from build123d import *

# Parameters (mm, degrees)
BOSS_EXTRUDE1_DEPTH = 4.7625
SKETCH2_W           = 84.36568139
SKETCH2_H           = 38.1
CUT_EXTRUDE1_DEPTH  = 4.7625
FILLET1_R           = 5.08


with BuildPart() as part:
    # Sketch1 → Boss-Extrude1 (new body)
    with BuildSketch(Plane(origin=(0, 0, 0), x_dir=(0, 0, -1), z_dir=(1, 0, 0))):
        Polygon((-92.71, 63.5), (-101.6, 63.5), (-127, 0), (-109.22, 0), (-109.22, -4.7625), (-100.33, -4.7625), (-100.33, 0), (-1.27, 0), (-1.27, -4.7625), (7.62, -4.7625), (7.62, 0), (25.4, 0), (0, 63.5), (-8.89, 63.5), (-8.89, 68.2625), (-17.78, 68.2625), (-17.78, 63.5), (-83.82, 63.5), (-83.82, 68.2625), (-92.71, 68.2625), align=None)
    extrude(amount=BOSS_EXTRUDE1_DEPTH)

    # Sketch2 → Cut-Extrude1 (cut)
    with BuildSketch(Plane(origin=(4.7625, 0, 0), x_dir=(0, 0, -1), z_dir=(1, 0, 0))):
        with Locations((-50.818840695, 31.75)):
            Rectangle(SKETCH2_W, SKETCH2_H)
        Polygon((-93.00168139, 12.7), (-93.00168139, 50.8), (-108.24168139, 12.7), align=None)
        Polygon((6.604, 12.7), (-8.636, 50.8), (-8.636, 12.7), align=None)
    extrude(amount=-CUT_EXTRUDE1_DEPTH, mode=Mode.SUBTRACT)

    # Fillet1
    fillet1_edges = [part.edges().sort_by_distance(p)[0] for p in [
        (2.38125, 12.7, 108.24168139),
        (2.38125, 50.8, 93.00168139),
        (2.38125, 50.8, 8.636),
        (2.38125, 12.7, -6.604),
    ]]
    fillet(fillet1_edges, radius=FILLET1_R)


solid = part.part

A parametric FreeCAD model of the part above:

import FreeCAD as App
import Part
import Sketcher
from FreeCAD import Vector
Q = App.Units.Quantity


def edges_at(feature, points):
    """Names of the edges that pass closest to the given points."""
    edges = feature.Shape.Edges
    near = lambda p: min(range(len(edges)), key=lambda i: edges[i].distToShape(Part.Vertex(*p))[0])
    return sorted({f"Edge{near(p) + 1}" for p in points})


def add_polygon(sketch, points):
    """Adds a closed chain of lines whose ends are joined by coincident constraints."""
    first, n = sketch.GeometryCount, len(points)
    for a, b in zip(points, points[1:] + points[:1]):
        sketch.addGeometry(Part.LineSegment(App.Vector(*a, 0), App.Vector(*b, 0)), False)
    for i in range(n):
        sketch.addConstraint(Sketcher.Constraint("Coincident", first + i, 2, first + (i + 1) % n, 1))

doc = App.newDocument("Part")
body = doc.addObject("PartDesign::Body", "Body")

sketch1 = body.newObject("Sketcher::SketchObject", "Sketch")
sketch1.AttachmentSupport = (doc.getObject("YZ_Plane"), [""])
sketch1.MapMode = "FlatFace"
add_polygon(sketch1, [(63.5, 92.7), (63.5, 101.6), (0, 127), (0, 109.2), (-4.8, 109.2), (-4.8, 100.3), (0, 100.3), (0, 1.3), (-4.8, 1.3), (-4.8, -7.6), (0, -7.6), (0, -25.4), (63.5, 0), (63.5, 8.9), (68.3, 8.9), (68.3, 17.8), (63.5, 17.8), (63.5, 83.8), (68.3, 83.8), (68.3, 92.7)])
sketch1.addConstraint([
    Sketcher.Constraint("Vertical", 0),
    Sketcher.Constraint("Vertical", 2),
    Sketcher.Constraint("Horizontal", 3),
    Sketcher.Constraint("Vertical", 4),
    Sketcher.Constraint("Horizontal", 5),
    Sketcher.Constraint("Vertical", 6),
    Sketcher.Constraint("Horizontal", 7),
    Sketcher.Constraint("Vertical", 8),
    Sketcher.Constraint("Horizontal", 9),
    Sketcher.Constraint("Vertical", 10),
    Sketcher.Constraint("Vertical", 12),
    Sketcher.Constraint("Horizontal", 13),
    Sketcher.Constraint("Vertical", 14),
    Sketcher.Constraint("Horizontal", 15),
    Sketcher.Constraint("Vertical", 16),
    Sketcher.Constraint("Horizontal", 17),
    Sketcher.Constraint("Vertical", 18),
    Sketcher.Constraint("Horizontal", 19),
    Sketcher.Constraint("PointOnObject", 1, 2, -2),
    Sketcher.Constraint("PointOnObject", 5, 2, -2),
    Sketcher.Constraint("PointOnObject", 9, 2, -2),
    Sketcher.Constraint("PointOnObject", 11, 2, -1),
    Sketcher.Constraint("Vertical", 4, 2, 7, 2),
    Sketcher.Constraint("Vertical", 0, 2, 11, 2),
    Sketcher.Constraint("Vertical", 12, 2, 15, 2),
    Sketcher.Constraint("Vertical", 14, 2, 17, 2),
    Sketcher.Constraint("Equal", 9, 13),
    Sketcher.Constraint("Equal", 0, 4),
    Sketcher.Constraint("Equal", 4, 8),
    Sketcher.Constraint("Equal", 2, 10),
    Sketcher.Constraint("Equal", 8, 12),
    Sketcher.Constraint("Equal", 12, 14),
    Sketcher.Constraint("Equal", 14, 18),
    Sketcher.Constraint("Equal", 1, 11),
    Sketcher.Constraint("DistanceY", 2, 2, 2, 1, Q("0.7 in")),
    Sketcher.Constraint("DistanceY", 6, 2, 6, 1, Q("3.9 in")),
    Sketcher.Constraint("DistanceY", 16, 1, 16, 2, Q("2.6 in")),
    Sketcher.Constraint("DistanceY", -1, 1, 0, 2, Q("4 in")),
    Sketcher.Constraint("DistanceX", -1, 1, 0, 2, Q("2.5 in")),
    Sketcher.Constraint("DistanceX", 3, 2, 3, 1, Q("0.1875 in")),
])
pad1 = body.newObject("PartDesign::Pad", "Pad")
pad1.Profile = sketch1
pad1.Length = Q("0.1875 in")

sketch2 = body.newObject("Sketcher::SketchObject", "Sketch001")
sketch2.AttachmentSupport = (doc.getObject("YZ_Plane"), [""])
sketch2.MapMode = "FlatFace"
sketch2.AttachmentOffset = App.Placement(Vector(0, 0, 0.1875 * 25.4), App.Rotation())
add_polygon(sketch2, [(51, 9), (51, 93), (13, 108), (13, -7)])
sketch2.addConstraint([
    Sketcher.Constraint("Vertical", 0),
    Sketcher.Constraint("Vertical", 2),
    Sketcher.Constraint("Equal", 1, 3),
    Sketcher.Constraint("DistanceX", -1, 1, 0, 2, Q("2 in")),
    Sketcher.Constraint("DistanceX", -1, 1, 1, 2, Q("0.5 in")),
    Sketcher.Constraint("DistanceY", 0, 2, 1, 2, Q("0.6 in")),
    Sketcher.Constraint("DistanceY", 2, 2, -1, 1, Q("0.26 in")),
    Sketcher.Constraint("DistanceY", 0, 1, 0, 2, 84.365681),
])
pocket1 = body.newObject("PartDesign::Pocket", "Pocket")
pocket1.Profile = sketch2
pocket1.Length = Q("0.1875 in")
doc.recompute()

fillet = body.newObject("PartDesign::Fillet", "Fillet")
fillet.Base = (pocket1, edges_at(pocket1, [
    (2.381, 12.7, 108.242),
    (2.381, 50.8, 93.002),
    (2.381, 50.8, 8.636),
    (2.381, 12.7, -6.604),
]))
fillet.Radius = Q("0.2 in")

doc.recompute()
